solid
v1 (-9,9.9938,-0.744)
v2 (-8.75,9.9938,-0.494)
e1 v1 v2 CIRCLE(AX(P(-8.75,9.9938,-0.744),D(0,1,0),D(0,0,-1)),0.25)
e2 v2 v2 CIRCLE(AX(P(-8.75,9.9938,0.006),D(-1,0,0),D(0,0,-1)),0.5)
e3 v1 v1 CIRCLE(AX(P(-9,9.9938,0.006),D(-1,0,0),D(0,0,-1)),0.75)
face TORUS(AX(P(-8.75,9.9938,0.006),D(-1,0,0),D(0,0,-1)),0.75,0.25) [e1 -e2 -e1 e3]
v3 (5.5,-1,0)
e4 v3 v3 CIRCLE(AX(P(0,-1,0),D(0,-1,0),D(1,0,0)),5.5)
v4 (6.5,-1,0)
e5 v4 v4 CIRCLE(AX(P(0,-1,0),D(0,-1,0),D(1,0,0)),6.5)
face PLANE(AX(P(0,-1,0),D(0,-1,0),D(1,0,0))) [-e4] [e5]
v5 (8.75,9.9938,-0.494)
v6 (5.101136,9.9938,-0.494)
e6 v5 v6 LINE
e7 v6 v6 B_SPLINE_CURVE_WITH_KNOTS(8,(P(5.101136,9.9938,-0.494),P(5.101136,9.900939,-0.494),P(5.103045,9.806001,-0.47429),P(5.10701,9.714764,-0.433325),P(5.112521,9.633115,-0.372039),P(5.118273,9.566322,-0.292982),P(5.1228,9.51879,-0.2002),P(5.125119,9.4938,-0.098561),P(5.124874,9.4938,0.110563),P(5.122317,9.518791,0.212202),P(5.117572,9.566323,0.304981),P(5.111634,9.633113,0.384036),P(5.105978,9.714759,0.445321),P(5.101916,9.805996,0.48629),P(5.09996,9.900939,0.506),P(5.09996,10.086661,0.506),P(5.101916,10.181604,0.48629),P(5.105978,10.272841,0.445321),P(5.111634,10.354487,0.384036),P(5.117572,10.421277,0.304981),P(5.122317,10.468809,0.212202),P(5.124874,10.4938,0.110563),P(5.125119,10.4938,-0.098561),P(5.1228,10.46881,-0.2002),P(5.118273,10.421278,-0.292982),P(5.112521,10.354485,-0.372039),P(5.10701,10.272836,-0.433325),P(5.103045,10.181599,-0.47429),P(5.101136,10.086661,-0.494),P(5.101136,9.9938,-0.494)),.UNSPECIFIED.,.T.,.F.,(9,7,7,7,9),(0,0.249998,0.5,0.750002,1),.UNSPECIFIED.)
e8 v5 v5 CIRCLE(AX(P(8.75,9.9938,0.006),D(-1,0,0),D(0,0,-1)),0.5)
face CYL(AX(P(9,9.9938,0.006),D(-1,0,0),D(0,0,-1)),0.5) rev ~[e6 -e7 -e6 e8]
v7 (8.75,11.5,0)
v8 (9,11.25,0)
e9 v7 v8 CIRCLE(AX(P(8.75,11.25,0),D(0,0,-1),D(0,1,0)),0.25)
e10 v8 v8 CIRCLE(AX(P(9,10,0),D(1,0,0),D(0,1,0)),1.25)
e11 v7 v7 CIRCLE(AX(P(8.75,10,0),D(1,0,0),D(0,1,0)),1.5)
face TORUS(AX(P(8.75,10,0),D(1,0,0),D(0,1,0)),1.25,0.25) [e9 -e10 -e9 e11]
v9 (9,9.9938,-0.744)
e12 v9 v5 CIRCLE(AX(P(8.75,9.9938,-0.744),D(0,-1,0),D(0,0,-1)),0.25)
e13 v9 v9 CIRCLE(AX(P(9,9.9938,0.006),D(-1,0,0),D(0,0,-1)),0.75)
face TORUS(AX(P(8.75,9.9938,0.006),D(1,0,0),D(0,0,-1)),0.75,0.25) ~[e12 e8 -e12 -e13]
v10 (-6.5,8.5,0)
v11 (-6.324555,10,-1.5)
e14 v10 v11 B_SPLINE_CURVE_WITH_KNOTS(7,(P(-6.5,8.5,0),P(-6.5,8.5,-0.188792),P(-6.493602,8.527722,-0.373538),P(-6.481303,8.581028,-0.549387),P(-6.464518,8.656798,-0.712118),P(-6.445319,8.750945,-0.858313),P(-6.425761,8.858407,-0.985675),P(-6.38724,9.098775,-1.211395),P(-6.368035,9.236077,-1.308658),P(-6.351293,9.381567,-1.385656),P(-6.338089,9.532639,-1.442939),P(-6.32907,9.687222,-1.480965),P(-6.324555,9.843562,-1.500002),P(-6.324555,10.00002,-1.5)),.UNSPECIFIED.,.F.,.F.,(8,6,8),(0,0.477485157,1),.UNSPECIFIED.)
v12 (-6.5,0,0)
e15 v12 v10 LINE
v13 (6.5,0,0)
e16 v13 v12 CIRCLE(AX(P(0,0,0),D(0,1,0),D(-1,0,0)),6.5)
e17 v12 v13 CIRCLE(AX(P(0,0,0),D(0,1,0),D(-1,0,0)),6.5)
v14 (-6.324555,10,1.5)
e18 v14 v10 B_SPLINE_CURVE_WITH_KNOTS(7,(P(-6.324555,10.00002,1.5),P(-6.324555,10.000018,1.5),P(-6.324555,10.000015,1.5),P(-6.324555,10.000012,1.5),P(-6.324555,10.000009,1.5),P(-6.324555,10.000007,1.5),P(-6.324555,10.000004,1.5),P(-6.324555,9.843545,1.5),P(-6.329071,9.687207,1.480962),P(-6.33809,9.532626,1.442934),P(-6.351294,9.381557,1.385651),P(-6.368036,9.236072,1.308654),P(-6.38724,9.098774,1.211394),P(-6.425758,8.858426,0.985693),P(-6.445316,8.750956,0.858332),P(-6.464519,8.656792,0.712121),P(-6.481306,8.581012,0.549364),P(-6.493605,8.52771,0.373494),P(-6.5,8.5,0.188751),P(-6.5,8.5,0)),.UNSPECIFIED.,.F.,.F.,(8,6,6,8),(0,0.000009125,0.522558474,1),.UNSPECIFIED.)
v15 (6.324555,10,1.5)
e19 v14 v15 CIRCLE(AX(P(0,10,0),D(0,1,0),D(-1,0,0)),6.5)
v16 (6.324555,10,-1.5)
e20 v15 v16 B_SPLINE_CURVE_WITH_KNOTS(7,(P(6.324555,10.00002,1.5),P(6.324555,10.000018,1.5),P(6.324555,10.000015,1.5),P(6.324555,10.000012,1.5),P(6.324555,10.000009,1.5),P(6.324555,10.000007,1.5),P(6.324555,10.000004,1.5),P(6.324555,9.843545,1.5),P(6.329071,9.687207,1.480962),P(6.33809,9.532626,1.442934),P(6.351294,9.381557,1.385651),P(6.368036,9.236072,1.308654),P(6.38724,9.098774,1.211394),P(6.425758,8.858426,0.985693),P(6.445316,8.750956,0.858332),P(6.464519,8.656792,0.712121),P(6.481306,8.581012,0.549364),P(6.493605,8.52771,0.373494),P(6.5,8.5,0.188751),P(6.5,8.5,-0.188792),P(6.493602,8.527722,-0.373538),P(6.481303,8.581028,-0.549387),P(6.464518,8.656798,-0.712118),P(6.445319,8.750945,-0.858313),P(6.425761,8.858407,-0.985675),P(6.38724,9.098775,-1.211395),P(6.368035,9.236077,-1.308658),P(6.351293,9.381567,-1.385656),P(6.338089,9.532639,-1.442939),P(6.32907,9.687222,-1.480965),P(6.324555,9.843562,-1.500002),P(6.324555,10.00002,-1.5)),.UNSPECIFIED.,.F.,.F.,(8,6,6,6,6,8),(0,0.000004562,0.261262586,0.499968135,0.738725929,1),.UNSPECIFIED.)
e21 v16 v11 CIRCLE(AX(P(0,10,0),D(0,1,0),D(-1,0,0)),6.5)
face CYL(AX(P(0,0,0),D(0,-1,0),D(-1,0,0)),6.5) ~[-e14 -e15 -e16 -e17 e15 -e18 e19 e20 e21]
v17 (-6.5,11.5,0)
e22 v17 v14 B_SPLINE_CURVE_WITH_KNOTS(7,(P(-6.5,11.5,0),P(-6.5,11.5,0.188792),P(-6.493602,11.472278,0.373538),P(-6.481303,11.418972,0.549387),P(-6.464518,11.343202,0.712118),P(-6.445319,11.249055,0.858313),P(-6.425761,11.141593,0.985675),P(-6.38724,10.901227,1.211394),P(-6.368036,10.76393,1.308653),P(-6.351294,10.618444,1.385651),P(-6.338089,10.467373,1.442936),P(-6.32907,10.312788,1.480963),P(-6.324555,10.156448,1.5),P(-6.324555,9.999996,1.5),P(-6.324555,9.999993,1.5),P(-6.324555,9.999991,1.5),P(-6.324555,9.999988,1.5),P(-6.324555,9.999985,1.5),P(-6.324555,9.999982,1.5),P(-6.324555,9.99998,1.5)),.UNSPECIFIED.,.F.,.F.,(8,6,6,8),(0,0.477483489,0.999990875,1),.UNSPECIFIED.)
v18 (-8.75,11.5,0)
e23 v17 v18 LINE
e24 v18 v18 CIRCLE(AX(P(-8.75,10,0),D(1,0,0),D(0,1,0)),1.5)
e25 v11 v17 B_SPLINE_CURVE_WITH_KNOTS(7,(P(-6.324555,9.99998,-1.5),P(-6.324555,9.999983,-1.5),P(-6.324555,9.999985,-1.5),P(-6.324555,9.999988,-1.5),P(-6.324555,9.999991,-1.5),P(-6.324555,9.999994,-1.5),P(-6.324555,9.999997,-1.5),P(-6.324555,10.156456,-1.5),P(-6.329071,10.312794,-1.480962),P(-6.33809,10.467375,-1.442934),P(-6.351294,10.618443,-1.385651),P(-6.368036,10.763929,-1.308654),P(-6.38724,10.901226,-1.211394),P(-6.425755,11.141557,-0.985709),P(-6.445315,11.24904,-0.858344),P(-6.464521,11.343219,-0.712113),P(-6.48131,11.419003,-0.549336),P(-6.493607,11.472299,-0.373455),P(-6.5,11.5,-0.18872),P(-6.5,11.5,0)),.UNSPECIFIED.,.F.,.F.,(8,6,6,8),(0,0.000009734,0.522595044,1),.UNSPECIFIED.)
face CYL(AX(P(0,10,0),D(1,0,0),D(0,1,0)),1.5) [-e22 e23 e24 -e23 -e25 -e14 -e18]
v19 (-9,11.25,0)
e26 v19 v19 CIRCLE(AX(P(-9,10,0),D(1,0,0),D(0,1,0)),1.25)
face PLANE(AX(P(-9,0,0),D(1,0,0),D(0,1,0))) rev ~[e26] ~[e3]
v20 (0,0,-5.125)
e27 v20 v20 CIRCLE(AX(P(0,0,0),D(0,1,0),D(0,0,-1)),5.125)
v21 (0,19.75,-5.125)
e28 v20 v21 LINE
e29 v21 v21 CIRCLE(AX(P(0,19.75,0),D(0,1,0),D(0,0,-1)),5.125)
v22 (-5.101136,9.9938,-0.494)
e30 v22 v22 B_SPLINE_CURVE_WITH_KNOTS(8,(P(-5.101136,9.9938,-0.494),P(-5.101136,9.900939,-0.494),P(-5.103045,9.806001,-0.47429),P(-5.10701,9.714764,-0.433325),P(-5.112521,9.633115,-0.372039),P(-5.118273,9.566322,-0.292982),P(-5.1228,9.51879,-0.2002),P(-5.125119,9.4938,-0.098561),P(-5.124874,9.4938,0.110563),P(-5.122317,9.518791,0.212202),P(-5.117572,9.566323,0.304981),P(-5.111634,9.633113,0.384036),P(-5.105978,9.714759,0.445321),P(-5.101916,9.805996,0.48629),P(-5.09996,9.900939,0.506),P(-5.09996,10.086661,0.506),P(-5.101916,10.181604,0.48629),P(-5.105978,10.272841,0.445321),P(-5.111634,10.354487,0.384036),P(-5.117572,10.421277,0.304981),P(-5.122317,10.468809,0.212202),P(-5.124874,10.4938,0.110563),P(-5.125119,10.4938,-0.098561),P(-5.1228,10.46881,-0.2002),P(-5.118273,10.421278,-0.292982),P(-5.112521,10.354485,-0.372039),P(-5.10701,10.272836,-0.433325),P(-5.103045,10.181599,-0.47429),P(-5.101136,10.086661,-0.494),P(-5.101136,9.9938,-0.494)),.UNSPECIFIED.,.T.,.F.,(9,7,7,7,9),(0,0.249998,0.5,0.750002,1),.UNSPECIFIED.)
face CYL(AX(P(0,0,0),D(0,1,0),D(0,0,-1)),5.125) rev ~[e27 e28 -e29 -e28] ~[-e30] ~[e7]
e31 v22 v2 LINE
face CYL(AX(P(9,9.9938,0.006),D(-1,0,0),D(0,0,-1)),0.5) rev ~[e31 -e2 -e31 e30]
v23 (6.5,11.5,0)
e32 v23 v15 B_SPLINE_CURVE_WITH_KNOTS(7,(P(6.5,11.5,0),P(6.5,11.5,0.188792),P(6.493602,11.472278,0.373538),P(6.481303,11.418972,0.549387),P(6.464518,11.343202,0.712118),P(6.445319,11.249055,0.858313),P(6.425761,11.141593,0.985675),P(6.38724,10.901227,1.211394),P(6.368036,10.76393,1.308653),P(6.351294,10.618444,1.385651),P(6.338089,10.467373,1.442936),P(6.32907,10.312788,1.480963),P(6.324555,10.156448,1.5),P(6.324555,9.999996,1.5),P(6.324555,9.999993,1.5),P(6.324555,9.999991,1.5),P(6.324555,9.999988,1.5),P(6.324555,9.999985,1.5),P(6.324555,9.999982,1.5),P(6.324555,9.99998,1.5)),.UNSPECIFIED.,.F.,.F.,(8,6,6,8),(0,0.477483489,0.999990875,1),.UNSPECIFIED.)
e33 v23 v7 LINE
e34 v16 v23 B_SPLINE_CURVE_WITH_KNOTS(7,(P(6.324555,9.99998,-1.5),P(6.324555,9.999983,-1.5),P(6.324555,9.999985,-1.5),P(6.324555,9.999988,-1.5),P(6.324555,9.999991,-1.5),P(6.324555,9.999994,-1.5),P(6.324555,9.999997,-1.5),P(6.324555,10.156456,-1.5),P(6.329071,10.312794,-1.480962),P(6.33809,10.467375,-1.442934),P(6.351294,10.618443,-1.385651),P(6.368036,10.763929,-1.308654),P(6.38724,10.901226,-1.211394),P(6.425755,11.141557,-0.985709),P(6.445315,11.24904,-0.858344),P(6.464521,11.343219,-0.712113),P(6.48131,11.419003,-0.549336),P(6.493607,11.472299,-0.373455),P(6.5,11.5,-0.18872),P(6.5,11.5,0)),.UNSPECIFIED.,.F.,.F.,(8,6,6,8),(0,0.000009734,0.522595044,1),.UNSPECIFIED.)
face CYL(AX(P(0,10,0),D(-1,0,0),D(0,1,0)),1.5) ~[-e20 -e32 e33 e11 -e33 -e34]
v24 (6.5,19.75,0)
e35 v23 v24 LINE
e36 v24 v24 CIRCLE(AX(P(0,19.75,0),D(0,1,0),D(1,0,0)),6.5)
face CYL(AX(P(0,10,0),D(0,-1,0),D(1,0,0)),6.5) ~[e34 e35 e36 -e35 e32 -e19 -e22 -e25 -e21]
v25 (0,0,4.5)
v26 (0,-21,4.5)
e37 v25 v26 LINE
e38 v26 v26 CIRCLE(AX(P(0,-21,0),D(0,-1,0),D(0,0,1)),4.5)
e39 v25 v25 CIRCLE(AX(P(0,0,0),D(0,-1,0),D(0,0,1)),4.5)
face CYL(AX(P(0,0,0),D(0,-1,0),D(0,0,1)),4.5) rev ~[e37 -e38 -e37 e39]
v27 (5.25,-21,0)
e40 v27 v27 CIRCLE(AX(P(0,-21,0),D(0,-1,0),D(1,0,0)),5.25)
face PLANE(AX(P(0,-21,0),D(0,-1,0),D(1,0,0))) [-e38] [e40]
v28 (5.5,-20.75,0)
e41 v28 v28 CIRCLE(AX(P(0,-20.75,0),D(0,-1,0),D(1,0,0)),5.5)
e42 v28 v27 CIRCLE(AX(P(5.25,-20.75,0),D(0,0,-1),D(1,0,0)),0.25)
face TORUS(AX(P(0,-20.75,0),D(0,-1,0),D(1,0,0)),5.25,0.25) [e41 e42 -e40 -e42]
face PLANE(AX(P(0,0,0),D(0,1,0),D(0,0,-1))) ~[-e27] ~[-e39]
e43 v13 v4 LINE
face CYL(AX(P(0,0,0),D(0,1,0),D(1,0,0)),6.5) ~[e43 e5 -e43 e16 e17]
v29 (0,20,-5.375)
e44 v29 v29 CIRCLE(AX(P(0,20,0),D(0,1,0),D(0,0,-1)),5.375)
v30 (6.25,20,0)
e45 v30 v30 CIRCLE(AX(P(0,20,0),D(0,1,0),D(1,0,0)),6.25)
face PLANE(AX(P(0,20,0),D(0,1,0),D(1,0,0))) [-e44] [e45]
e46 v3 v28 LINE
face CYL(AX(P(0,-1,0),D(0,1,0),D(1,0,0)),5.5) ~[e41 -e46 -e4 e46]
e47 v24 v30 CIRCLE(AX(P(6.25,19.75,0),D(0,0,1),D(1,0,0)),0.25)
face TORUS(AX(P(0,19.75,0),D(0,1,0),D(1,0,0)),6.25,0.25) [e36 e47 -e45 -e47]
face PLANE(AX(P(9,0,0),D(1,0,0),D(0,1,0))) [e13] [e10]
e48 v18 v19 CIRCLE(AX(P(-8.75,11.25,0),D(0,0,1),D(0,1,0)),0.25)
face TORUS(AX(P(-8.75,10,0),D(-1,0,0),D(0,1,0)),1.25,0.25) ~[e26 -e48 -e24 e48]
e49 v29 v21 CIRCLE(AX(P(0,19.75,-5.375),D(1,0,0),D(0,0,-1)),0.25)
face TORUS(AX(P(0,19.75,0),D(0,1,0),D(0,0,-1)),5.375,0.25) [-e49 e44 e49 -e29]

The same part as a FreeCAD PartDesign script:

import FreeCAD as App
import Part
import Sketcher
Q = App.Units.Quantity


def edges_at(feature, points):
    """Names of the edges that pass closest to the given points."""
    edges = feature.Shape.Edges
    near = lambda p: min(range(len(edges)), key=lambda i: edges[i].distToShape(Part.Vertex(*p))[0])
    return sorted({f"Edge{near(p) + 1}" for p in points})

doc = App.newDocument("Part")
params = doc.addObject("Spreadsheet::Sheet", "Params")
for row, (alias, value) in enumerate([
    ("sketch1_diameter", "13 mm"),
    ("pad1_length", "10 mm"),
    ("sketch2_diameter", "13 mm"),
    ("pad2_length", "1 mm"),
    ("sketch3_diameter", "11 mm"),
    ("pad3_length", "20 mm"),
    ("sketch4_diameter", "9 mm"),
    ("hole_diameter", "9 mm"),
    ("hole_depth", "391.2125 mm"),
    ("sketch5_diameter", "13 mm"),
    ("pad4_length", "10 mm"),
    ("sketch6_diameter", "3 mm"),
    ("pad5_length", "18 mm"),
    ("sketch7_diameter", "10.25 mm"),
    ("hole2_diameter", "10.25 mm"),
    ("hole2_depth", "391.2125 mm"),
    ("sketch8_diameter", "1 mm"),
    ("hole3_diameter", "1 mm"),
    ("hole3_depth", "391.2125 mm"),
    ("fillet_radius", "0.25 mm"),
    ("fillet2_radius", "0.25 mm"),
], start=1):
    params.set(f"A{row}", alias)
    params.set(f"B{row}", "=" + value)
    params.setAlias(f"B{row}", alias)

body = doc.addObject("PartDesign::Body", "Body")

# Sketch on XZ plane
sketch1 = doc.addObject("Sketcher::SketchObject", "Sketch")
body.addObject(sketch1)
sketch1.AttachmentSupport = (doc.XZ_Plane, [""])
sketch1.MapMode = "FlatFace"
sketch1.addGeometry(Part.Circle(App.Vector(0, 0, 0), App.Vector(0, 0, 1), 6), False)
sketch1.addConstraint([
    Sketcher.Constraint("Coincident", 0, 3, -1, 1),
    Sketcher.Constraint("Diameter", 0, Q("13 mm")),
])
sketch1.setExpression("Constraints[1]", "Params.sketch1_diameter")
pad1 = doc.addObject("PartDesign::Pad", "Pad")
body.addObject(pad1)
pad1.Profile = sketch1
pad1.setExpression("Length", "Params.pad1_length")
pad1.Reversed = True

# Sketch on XZ plane
sketch2 = doc.addObject("Sketcher::SketchObject", "Sketch001")
body.addObject(sketch2)
sketch2.AttachmentSupport = (doc.XZ_Plane, [""])
sketch2.MapMode = "FlatFace"
sketch2.addGeometry(Part.Circle(App.Vector(0, 0, 0), App.Vector(0, 0, 1), 6), False)
sketch2.addConstraint([
    Sketcher.Constraint("Coincident", 0, 3, -1, 1),
    Sketcher.Constraint("Diameter", 0, Q("13 mm")),
])
sketch2.setExpression("Constraints[1]", "Params.sketch2_diameter")
pad2 = doc.addObject("PartDesign::Pad", "Pad001")
body.addObject(pad2)
pad2.Profile = sketch2
pad2.setExpression("Length", "Params.pad2_length")

# Sketch on XZ plane
sketch3 = doc.addObject("Sketcher::SketchObject", "Sketch002")
body.addObject(sketch3)
sketch3.AttachmentSupport = (doc.XZ_Plane, [""])
sketch3.MapMode = "FlatFace"
sketch3.AttachmentOffset = App.Placement(App.Vector(0, 0, 1), App.Rotation())
sketch3.addGeometry(Part.Circle(App.Vector(0, 0, 0), App.Vector(0, 0, 1), 6), False)
sketch3.addConstraint([
    Sketcher.Constraint("Coincident", 0, 3, -1, 1),
    Sketcher.Constraint("Diameter", 0, Q("11 mm")),
])
sketch3.setExpression("Constraints[1]", "Params.sketch3_diameter")
pad3 = doc.addObject("PartDesign::Pad", "Pad002")
body.addObject(pad3)
pad3.Profile = sketch3
pad3.setExpression("Length", "Params.pad3_length")

# Sketch on XZ plane
sketch4 = doc.addObject("Sketcher::SketchObject", "Sketch003")
body.addObject(sketch4)
sketch4.AttachmentSupport = (doc.XZ_Plane, [""])
sketch4.MapMode = "FlatFace"
sketch4.addGeometry(Part.Circle(App.Vector(0, 0, 0), App.Vector(0, 0, 1), 4.5), False)
sketch4.addConstraint([
    Sketcher.Constraint("Coincident", 0, 3, -1, 1),
    Sketcher.Constraint("Diameter", 0, Q("9 mm")),
])
sketch4.setExpression("Constraints[1]", "Params.sketch4_diameter")
doc.recompute()
hole = doc.addObject("PartDesign::Hole", "Hole")
body.addObject(hole)
hole.Profile = sketch4
hole.ThreadType = "None"
hole.setExpression("Diameter", "Params.hole_diameter")
hole.DepthType = "Dimension"
hole.setExpression("Depth", "Params.hole_depth")
hole.DrillPoint = "Angled"
hole.DrillPointAngle = 118
hole.Reversed = True

# Sketch on XZ plane
sketch5 = doc.addObject("Sketcher::SketchObject", "Sketch004")
body.addObject(sketch5)
sketch5.AttachmentSupport = (doc.XZ_Plane, [""])
sketch5.MapMode = "FlatFace"
sketch5.AttachmentOffset = App.Placement(App.Vector(0, 0, -10), App.Rotation())
sketch5.addGeometry(Part.Circle(App.Vector(0, 0, 0), App.Vector(0, 0, 1), 6), False)
sketch5.addConstraint([
    Sketcher.Constraint("Coincident", 0, 3, -1, 1),
    Sketcher.Constraint("Diameter", 0, Q("13 mm")),
])
sketch5.setExpression("Constraints[1]", "Params.sketch5_diameter")
pad4 = doc.addObject("PartDesign::Pad", "Pad003")
body.addObject(pad4)
pad4.Profile = sketch5
pad4.setExpression("Length", "Params.pad4_length")
pad4.Reversed = True

# Sketch on YZ plane
sketch6 = doc.addObject("Sketcher::SketchObject", "Sketch005")
body.addObject(sketch6)
sketch6.AttachmentSupport = (doc.YZ_Plane, [""])
sketch6.MapMode = "FlatFace"
sketch6.addGeometry(Part.Circle(App.Vector(10, 0, 0), App.Vector(0, 0, 1), 1.5), False)
sketch6.addConstraint([
    Sketcher.Constraint("PointOnObject", 0, 3, -1),
    Sketcher.Constraint("Diameter", 0, Q("3 mm")),
    Sketcher.Constraint("DistanceX", -1, 1, 0, 3, Q("10 mm")),
])
sketch6.setExpression("Constraints[1]", "Params.sketch6_diameter")
pad5 = doc.addObject("PartDesign::Pad", "Pad004")
body.addObject(pad5)
pad5.Profile = sketch6
pad5.setExpression("Length", "Params.pad5_length")
pad5.Midplane = True

# Sketch on XZ plane
sketch7 = doc.addObject("Sketcher::SketchObject", "Sketch006")
body.addObject(sketch7)
sketch7.AttachmentSupport = (doc.XZ_Plane, [""])
sketch7.MapMode = "FlatFace"
sketch7.addGeometry(Part.Circle(App.Vector(0, 0, 0), App.Vector(0, 0, 1), 5), False)
sketch7.addConstraint([
    Sketcher.Constraint("Coincident", 0, 3, -1, 1),
    Sketcher.Constraint("Diameter", 0, Q("10.25 mm")),
])
sketch7.setExpression("Constraints[1]", "Params.sketch7_diameter")
doc.recompute()
hole2 = doc.addObject("PartDesign::Hole", "Hole001")
body.addObject(hole2)
hole2.Profile = sketch7
hole2.ThreadType = "None"
hole2.setExpression("Diameter", "Params.hole2_diameter")
hole2.DepthType = "Dimension"
hole2.setExpression("Depth", "Params.hole2_depth")
hole2.DrillPoint = "Angled"
hole2.DrillPointAngle = 118

# Sketch on YZ plane
sketch8 = doc.addObject("Sketcher::SketchObject", "Sketch007")
body.addObject(sketch8)
sketch8.AttachmentSupport = (doc.YZ_Plane, [""])
sketch8.MapMode = "FlatFace"
sketch8.AttachmentOffset = App.Placement(App.Vector(0, 0, 9), App.Rotation())
sketch8.addGeometry(Part.Circle(App.Vector(10, 0, 0), App.Vector(0, 0, 1), 0.5), False)
sketch8.addConstraint([
    Sketcher.Constraint("Diameter", 0, Q("1 mm")),
    Sketcher.Constraint("DistanceY", -1, 1, 0, 3, Q("0.006 mm")),
    Sketcher.Constraint("DistanceX", -1, 1, 0, 3, Q("9.9938 mm")),
])
sketch8.setExpression("Constraints[0]", "Params.sketch8_diameter")
doc.recompute()
hole3 = doc.addObject("PartDesign::Hole", "Hole002")
body.addObject(hole3)
hole3.Profile = sketch8
hole3.ThreadType = "None"
hole3.setExpression("Diameter", "Params.hole3_diameter")
hole3.DepthType = "Dimension"
hole3.setExpression("Depth", "Params.hole3_depth")
hole3.DrillPoint = "Angled"
hole3.DrillPointAngle = 118
doc.recompute()

fillet = doc.addObject("PartDesign::Fillet", "Fillet")
body.addObject(fillet)
fillet.Base = (hole3, edges_at(hole3, [(0, 20, 5.125), (-6.5, 20, 0), (-5.5, -21, 0)]))
fillet.setExpression("Radius", "Params.fillet_radius")
doc.recompute()

fillet2 = doc.addObject("PartDesign::Fillet", "Fillet001")
body.addObject(fillet2)
fillet2.Base = (fillet, edges_at(fillet, [
    (9, 8.5, 0),
    (-9, 8.5, 0),
    (9, 9.994, 0.506),
    (-9, 9.994, 0.506),
]))
fillet2.setExpression("Radius", "Params.fillet2_radius")

doc.recompute()
